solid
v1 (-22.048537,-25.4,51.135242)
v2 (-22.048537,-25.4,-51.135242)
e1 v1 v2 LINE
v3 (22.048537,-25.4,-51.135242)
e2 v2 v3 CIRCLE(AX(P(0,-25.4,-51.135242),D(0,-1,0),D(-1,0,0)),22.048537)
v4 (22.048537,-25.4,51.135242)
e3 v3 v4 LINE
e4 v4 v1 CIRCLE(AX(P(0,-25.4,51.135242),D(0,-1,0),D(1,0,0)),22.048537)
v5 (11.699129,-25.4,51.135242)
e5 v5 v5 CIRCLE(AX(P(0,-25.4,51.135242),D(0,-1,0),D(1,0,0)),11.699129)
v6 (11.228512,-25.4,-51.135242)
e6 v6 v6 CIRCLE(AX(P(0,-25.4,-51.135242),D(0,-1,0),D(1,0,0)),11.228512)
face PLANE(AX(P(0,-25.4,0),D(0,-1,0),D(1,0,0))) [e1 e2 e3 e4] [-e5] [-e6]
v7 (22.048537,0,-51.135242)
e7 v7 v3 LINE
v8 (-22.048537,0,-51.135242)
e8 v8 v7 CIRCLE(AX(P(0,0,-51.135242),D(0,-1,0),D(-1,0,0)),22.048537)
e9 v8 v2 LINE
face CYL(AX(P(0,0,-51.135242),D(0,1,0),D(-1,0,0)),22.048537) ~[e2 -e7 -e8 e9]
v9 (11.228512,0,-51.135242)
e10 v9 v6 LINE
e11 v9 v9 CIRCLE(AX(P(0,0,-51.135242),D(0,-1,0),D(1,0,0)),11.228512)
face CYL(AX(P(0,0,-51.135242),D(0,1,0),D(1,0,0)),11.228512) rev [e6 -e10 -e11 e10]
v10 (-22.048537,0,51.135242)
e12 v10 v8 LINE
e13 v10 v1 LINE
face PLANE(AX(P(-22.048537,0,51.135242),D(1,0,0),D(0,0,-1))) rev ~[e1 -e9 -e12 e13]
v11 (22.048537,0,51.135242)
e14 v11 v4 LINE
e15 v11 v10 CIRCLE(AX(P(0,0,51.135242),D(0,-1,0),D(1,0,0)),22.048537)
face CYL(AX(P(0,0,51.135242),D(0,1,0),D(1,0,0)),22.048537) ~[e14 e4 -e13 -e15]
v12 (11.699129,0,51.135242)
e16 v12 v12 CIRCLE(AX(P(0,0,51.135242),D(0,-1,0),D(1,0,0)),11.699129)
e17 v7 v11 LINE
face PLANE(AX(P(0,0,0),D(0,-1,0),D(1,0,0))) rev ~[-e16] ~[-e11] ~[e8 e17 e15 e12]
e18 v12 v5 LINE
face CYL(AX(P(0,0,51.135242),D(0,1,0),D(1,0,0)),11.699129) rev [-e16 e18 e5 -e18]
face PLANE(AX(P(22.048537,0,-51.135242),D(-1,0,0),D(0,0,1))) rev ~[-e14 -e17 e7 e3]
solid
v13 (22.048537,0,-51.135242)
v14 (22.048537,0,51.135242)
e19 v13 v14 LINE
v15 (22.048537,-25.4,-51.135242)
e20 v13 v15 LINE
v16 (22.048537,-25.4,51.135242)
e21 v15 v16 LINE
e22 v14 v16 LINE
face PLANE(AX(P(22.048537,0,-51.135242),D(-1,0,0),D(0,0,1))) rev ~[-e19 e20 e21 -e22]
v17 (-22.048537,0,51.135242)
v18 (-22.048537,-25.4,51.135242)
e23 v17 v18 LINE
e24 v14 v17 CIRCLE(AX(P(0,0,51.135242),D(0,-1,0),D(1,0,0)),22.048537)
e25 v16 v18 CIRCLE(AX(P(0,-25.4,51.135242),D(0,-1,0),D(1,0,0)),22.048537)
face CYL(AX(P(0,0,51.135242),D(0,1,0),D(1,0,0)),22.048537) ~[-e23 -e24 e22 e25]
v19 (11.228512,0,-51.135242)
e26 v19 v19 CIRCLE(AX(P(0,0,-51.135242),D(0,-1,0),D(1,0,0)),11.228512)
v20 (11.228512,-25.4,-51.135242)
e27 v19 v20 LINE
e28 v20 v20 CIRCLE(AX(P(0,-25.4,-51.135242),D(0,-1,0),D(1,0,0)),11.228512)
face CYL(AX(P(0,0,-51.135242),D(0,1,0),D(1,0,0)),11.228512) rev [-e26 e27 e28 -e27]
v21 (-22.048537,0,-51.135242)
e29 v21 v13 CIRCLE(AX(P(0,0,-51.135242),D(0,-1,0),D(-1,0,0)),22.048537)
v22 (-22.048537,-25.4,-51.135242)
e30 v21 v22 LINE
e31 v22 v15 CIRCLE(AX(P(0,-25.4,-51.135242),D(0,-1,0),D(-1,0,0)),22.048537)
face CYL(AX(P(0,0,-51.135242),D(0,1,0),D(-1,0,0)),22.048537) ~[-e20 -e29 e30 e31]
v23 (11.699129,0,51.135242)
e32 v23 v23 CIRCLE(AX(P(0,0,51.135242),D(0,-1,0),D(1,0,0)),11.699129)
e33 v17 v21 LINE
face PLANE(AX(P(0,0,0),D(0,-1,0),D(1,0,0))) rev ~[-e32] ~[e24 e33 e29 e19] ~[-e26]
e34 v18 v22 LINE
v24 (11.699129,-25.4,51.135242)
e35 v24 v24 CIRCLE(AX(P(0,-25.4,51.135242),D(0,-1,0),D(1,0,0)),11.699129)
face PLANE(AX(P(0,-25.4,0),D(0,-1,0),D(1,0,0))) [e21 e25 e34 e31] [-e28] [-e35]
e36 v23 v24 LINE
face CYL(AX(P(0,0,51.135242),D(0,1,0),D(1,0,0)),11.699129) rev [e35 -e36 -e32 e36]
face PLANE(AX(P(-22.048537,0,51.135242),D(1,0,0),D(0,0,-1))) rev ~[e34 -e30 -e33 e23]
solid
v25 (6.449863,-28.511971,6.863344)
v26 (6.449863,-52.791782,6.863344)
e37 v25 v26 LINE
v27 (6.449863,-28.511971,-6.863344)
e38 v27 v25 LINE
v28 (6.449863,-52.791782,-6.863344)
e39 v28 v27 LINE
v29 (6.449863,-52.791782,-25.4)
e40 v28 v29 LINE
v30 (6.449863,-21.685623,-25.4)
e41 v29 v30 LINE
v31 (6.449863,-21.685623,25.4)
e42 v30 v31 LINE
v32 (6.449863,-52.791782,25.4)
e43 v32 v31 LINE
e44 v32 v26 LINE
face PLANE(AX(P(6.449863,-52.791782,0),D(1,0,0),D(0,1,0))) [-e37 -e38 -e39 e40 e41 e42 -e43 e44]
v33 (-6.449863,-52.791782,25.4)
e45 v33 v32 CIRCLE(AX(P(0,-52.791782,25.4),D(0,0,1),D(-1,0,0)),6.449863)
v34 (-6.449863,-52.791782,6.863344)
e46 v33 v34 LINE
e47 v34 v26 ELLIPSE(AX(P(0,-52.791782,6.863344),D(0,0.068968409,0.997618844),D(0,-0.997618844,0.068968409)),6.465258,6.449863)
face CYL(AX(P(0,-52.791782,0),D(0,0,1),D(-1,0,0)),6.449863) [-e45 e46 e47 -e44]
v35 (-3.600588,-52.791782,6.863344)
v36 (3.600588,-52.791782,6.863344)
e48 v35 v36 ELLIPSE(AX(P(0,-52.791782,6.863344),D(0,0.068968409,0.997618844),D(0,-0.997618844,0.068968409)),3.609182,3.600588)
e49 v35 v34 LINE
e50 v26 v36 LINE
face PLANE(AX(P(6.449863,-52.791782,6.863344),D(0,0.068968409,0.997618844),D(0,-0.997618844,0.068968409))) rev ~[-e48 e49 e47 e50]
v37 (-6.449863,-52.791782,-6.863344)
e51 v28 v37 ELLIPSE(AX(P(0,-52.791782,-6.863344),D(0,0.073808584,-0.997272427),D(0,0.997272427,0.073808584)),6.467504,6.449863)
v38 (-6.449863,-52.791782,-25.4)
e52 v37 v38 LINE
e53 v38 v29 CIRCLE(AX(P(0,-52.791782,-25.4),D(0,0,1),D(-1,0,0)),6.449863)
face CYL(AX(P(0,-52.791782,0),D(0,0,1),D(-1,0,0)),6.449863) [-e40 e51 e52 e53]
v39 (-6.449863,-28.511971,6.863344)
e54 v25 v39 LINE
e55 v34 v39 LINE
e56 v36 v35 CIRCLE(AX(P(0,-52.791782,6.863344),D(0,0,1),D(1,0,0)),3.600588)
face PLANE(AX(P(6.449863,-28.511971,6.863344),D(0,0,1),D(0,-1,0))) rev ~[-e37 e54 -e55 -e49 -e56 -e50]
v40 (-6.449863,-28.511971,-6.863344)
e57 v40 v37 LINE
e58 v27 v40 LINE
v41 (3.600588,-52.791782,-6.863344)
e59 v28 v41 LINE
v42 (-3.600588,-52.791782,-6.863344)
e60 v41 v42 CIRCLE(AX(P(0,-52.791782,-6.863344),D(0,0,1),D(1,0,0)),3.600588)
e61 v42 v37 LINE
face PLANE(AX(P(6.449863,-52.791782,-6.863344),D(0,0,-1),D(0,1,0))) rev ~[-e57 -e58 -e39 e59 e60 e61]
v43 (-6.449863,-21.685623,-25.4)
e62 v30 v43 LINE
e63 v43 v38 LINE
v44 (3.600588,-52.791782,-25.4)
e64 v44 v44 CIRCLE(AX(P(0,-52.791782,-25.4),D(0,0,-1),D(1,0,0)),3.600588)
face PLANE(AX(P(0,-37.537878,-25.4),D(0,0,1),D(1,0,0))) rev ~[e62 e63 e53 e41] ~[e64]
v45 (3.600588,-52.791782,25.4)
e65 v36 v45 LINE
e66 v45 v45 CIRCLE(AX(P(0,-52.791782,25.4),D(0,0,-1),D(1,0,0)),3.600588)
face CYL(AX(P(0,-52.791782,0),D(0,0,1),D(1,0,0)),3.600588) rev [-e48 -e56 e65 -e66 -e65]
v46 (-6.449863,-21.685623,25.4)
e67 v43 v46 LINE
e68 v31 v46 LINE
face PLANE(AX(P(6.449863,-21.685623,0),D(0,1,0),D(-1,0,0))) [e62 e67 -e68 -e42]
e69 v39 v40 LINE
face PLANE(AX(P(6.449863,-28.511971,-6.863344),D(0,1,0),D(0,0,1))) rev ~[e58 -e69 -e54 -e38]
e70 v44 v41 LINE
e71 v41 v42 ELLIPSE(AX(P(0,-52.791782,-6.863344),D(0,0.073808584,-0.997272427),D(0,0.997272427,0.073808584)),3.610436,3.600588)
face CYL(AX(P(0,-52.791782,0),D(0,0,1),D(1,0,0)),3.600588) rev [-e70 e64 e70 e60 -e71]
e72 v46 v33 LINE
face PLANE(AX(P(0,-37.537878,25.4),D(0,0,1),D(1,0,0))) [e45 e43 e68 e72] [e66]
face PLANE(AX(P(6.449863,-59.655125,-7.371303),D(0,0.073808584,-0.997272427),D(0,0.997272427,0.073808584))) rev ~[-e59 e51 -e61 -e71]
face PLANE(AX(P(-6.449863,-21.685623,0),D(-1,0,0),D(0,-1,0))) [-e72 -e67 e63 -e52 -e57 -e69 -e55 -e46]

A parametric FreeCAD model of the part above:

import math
import FreeCAD as App
import Part
import Sketcher

V = App.Vector
Q = App.Units.Quantity

doc = App.newDocument("Part")
body = doc.addObject("PartDesign::Body", "Body")

sketch1 = body.newObject("Sketcher::SketchObject", "Sketch")
sketch1.AttachmentSupport = (doc.getObject("XZ_Plane"), [""])
sketch1.MapMode = "FlatFace"
sketch1.addGeometry([
    Part.LineSegment(V(22, -51, 0), V(22, 51, 0)),
    Part.ArcOfCircle(Part.Circle(V(0, 51, 0), V(0, 0, 1), 22), math.radians(0), math.radians(180)),
    Part.LineSegment(V(-22, 51, 0), V(-22, -51, 0)),
    Part.ArcOfCircle(Part.Circle(V(0, -51, 0), V(0, 0, 1), 22), math.radians(180), math.radians(360)),
    Part.Circle(V(0, -51, 0), V(0, 0, 1), 11),
    Part.Circle(V(0, 51, 0), V(0, 0, 1), 12),
], False)
sketch1.addConstraint([
    Sketcher.Constraint("Tangent", 0, 2, 1, 1),
    Sketcher.Constraint("Tangent", 1, 2, 2, 1),
    Sketcher.Constraint("Tangent", 2, 2, 3, 1),
    Sketcher.Constraint("Tangent", 3, 2, 0, 1),
    Sketcher.Constraint("Vertical", 0),
    Sketcher.Constraint("Vertical", 2),
    Sketcher.Constraint("Coincident", 4, 3, 3, 3),
    Sketcher.Constraint("Coincident", 5, 3, 1, 3),
    Sketcher.Constraint("Symmetric", 1, 3, 3, 3, -1, 1),
    Sketcher.Constraint("Diameter", 4, 22.457024),
    Sketcher.Constraint("Diameter", 5, 23.398258),
    Sketcher.Constraint("Radius", 1, 22.048537),
    Sketcher.Constraint("DistanceY", 0, 1, 0, 2, 102.270484),
])
pad1 = body.newObject("PartDesign::Pad", "Pad")
pad1.Profile = sketch1
pad1.Length = Q("1 in")
body2 = doc.addObject("PartDesign::Body", "Body001")

sketch2 = body2.newObject("Sketcher::SketchObject", "Sketch001")
sketch2.AttachmentSupport = (doc.getObject("XZ_Plane001"), [""])
sketch2.MapMode = "FlatFace"
sketch2.addGeometry([
    Part.ArcOfCircle(Part.Circle(V(0, -51, 0), V(0, 0, 1), 22), math.radians(180), math.radians(360)),
    Part.LineSegment(V(22, -51, 0), V(22, 51, 0)),
    Part.ArcOfCircle(Part.Circle(V(0, 51, 0), V(0, 0, 1), 22), math.radians(0), math.radians(180)),
    Part.LineSegment(V(-22, 51, 0), V(-22, -51, 0)),
    Part.Circle(V(0, -51, 0), V(0, 0, 1), 11),
    Part.Circle(V(0, 51, 0), V(0, 0, 1), 12),
], False)
sketch2.addConstraint([
    Sketcher.Constraint("Tangent", 0, 2, 1, 1),
    Sketcher.Constraint("Tangent", 1, 2, 2, 1),
    Sketcher.Constraint("Tangent", 2, 2, 3, 1),
    Sketcher.Constraint("Tangent", 3, 2, 0, 1),
    Sketcher.Constraint("Vertical", 1),
    Sketcher.Constraint("Vertical", 3),
    Sketcher.Constraint("Coincident", 4, 3, 0, 3),
    Sketcher.Constraint("Coincident", 5, 3, 2, 3),
    Sketcher.Constraint("Symmetric", 0, 3, 2, 3, -1, 1),
    Sketcher.Constraint("Diameter", 4, 22.457024),
    Sketcher.Constraint("Diameter", 5, 23.398258),
    Sketcher.Constraint("Radius", 0, 22.048537),
    Sketcher.Constraint("DistanceY", 1, 1, 1, 2, 102.270484),
])
pad2 = body2.newObject("PartDesign::Pad", "Pad001")
pad2.Profile = sketch2
pad2.Length = Q("1 in")
body3 = doc.addObject("PartDesign::Body", "Body002")

sketch3 = body3.newObject("Sketcher::SketchObject", "Sketch002")
sketch3.AttachmentSupport = (doc.getObject("XY_Plane002"), [""])
sketch3.MapMode = "FlatFace"
sketch3.addGeometry([
    Part.LineSegment(V(6.4, -52.8, 0), V(6.4, -21.7, 0)),
    Part.LineSegment(V(6.4, -21.7, 0), V(-6.4, -21.7, 0)),
    Part.LineSegment(V(-6.4, -21.7, 0), V(-6.4, -52.8, 0)),
    Part.ArcOfCircle(Part.Circle(V(0, -52.8, 0), V(0, 0, 1), 6.4), math.radians(180), math.radians(360)),
    Part.Circle(V(0, -52.8, 0), V(0, 0, 1), 3.6),
], False)
sketch3.addConstraint([
    Sketcher.Constraint("Coincident", 0, 2, 1, 1),
    Sketcher.Constraint("Coincident", 1, 2, 2, 1),
    Sketcher.Constraint("Tangent", 2, 2, 3, 1),
    Sketcher.Constraint("Tangent", 3, 2, 0, 1),
    Sketcher.Constraint("Vertical", 0),
    Sketcher.Constraint("Horizontal", 1),
    Sketcher.Constraint("Vertical", 2),
    Sketcher.Constraint("Coincident", 4, 3, 3, 3),
    Sketcher.Constraint("PointOnObject", 3, 3, -2),
    Sketcher.Constraint("Diameter", 4, 7.201176),
    Sketcher.Constraint("Radius", 3, 6.449863),
    Sketcher.Constraint("DistanceY", 0, 1, 0, 2, 31.106159),
    Sketcher.Constraint("DistanceY", 3, 3, -1, 1, 52.791782),
])
pad3 = body3.newObject("PartDesign::Pad", "Pad002")
pad3.Profile = sketch3
pad3.Type = "TwoLengths"
pad3.Length = Q("1 in")
pad3.Length2 = Q("1 in")

sketch4 = body3.newObject("Sketcher::SketchObject", "Sketch003")
sketch4.AttachmentSupport = (doc.getObject("YZ_Plane002"), [""])
sketch4.MapMode = "FlatFace"
sketch4.AttachmentOffset = App.Placement(V(0, 0, 6.449863), App.Rotation())
sketch4.addGeometry([
    Part.LineSegment(V(-53, -7, 0), V(-29, -7, 0)),
    Part.LineSegment(V(-29, -7, 0), V(-29, 7, 0)),
    Part.LineSegment(V(-29, 7, 0), V(-53, 7, 0)),
    Part.LineSegment(V(-53, 7, 0), V(-60, 7, 0)),
    Part.LineSegment(V(-60, 7, 0), V(-60, -7, 0)),
    Part.LineSegment(V(-60, -7, 0), V(-53, -7, 0)),
], False)
sketch4.addConstraint([
    Sketcher.Constraint("Coincident", 0, 2, 1, 1),
    Sketcher.Constraint("Coincident", 1, 2, 2, 1),
    Sketcher.Constraint("Coincident", 2, 2, 3, 1),
    Sketcher.Constraint("Coincident", 3, 2, 4, 1),
    Sketcher.Constraint("Coincident", 4, 2, 5, 1),
    Sketcher.Constraint("Coincident", 5, 2, 0, 1),
    Sketcher.Constraint("Horizontal", 0),
    Sketcher.Constraint("Vertical", 1),
    Sketcher.Constraint("Horizontal", 2),
    Sketcher.Constraint("Vertical", 4),
    Sketcher.Constraint("Symmetric", 2, 2, 5, 2, -1),
    Sketcher.Constraint("DistanceX", 0, 1, 0, 2, 24.27981),
    Sketcher.Constraint("DistanceY", 4, 2, 4, 1, 14.70913),
    Sketcher.Constraint("DistanceY", 1, 1, 1, 2, 13.726687),
    Sketcher.Constraint("DistanceX", 0, 2, -1, 1, 28.511971),
    Sketcher.Constraint("DistanceY", 0, 2, 3, 2, 14.201171),
    Sketcher.Constraint("Distance", 3, 6.879725),
])
pocket1 = body3.newObject("PartDesign::Pocket", "Pocket")
pocket1.Profile = sketch4
pocket1.Length = Q("1 in")

doc.recompute()
